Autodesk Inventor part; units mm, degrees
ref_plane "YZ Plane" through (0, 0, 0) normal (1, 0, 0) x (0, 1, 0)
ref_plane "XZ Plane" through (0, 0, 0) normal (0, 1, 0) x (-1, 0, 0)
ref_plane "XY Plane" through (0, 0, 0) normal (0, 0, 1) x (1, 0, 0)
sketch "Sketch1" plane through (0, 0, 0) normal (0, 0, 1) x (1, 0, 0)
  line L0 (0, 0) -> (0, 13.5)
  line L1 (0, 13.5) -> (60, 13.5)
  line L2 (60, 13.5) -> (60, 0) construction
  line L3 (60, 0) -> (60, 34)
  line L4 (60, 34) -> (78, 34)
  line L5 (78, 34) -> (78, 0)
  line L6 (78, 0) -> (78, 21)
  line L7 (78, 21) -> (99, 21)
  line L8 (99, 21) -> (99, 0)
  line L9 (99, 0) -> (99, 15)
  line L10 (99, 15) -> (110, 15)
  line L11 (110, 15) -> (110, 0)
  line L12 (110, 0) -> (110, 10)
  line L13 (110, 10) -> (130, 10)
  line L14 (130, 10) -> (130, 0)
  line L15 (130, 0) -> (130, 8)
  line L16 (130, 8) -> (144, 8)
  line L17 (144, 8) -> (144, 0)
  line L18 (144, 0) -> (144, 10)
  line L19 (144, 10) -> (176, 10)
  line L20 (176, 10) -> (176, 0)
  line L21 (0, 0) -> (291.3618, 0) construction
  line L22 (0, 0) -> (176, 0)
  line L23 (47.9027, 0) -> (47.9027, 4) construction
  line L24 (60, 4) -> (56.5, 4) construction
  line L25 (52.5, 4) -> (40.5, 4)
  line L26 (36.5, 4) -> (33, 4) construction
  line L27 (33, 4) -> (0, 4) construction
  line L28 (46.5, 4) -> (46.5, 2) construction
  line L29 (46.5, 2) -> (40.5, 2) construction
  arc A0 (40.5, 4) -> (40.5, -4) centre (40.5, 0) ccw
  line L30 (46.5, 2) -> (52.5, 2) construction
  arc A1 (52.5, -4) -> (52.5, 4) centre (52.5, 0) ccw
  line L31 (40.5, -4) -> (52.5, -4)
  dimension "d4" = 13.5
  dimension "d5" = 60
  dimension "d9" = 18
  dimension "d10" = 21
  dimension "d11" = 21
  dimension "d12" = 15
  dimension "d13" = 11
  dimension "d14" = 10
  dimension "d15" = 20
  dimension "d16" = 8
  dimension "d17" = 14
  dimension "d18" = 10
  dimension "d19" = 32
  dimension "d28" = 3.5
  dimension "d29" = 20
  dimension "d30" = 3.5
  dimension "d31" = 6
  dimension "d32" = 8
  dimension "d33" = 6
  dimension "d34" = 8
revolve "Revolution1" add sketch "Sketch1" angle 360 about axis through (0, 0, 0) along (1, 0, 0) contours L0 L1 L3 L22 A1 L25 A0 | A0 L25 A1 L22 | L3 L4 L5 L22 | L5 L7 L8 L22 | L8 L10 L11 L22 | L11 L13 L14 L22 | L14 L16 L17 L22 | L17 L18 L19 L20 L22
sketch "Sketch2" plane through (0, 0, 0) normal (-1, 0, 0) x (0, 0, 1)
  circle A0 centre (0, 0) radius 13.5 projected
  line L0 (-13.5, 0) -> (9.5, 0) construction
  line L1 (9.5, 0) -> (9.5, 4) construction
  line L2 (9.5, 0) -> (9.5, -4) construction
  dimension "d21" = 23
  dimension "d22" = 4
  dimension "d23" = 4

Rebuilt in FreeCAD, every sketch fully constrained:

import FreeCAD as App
import Part
import Sketcher

V = App.Vector
Q = App.Units.Quantity


def add_polygon(sketch, points):
    """Adds a closed chain of lines whose ends are joined by coincident constraints."""
    first, n = sketch.GeometryCount, len(points)
    for a, b in zip(points, points[1:] + points[:1]):
        sketch.addGeometry(Part.LineSegment(App.Vector(*a, 0), App.Vector(*b, 0)), False)
    for i in range(n):
        sketch.addConstraint(Sketcher.Constraint("Coincident", first + i, 2, first + (i + 1) % n, 1))

doc = App.newDocument("Part")
body = doc.addObject("PartDesign::Body", "Body")

sketch1 = body.newObject("Sketcher::SketchObject", "Sketch")
sketch1.AttachmentSupport = (doc.getObject("XY_Plane"), [""])
sketch1.MapMode = "FlatFace"
add_polygon(sketch1, [(0, 13.5), (0, 0), (176, 0), (176, 10), (144, 10), (144, 8), (130, 8), (130, 10), (110, 10), (110, 15), (99, 15), (99, 21), (78, 21), (78, 34), (60, 34), (60, 13.5)])
sketch1.addConstraint(Sketcher.Constraint("Vertical", 0))
sketch1.addConstraint(Sketcher.Constraint("Horizontal", 1))
sketch1.addConstraint(Sketcher.Constraint("Vertical", 2))
sketch1.addConstraint(Sketcher.Constraint("Horizontal", 3))
sketch1.addConstraint(Sketcher.Constraint("Vertical", 4))
sketch1.addConstraint(Sketcher.Constraint("Horizontal", 5))
sketch1.addConstraint(Sketcher.Constraint("Vertical", 6))
sketch1.addConstraint(Sketcher.Constraint("Horizontal", 7))
sketch1.addConstraint(Sketcher.Constraint("Vertical", 8))
sketch1.addConstraint(Sketcher.Constraint("Horizontal", 9))
sketch1.addConstraint(Sketcher.Constraint("Vertical", 10))
sketch1.addConstraint(Sketcher.Constraint("Horizontal", 11))
sketch1.addConstraint(Sketcher.Constraint("Vertical", 12))
sketch1.addConstraint(Sketcher.Constraint("Horizontal", 13))
sketch1.addConstraint(Sketcher.Constraint("Vertical", 14))
sketch1.addConstraint(Sketcher.Constraint("Horizontal", 15))
sketch1.addConstraint(Sketcher.Constraint("Coincident", 0, 2, -1, 1))
sketch1.addConstraint(Sketcher.Constraint("Horizontal", 3, 2, 6, 2))
sketch1.addConstraint(Sketcher.Constraint("DistanceX", 3, 2, 3, 1, Q("32 mm")))
sketch1.addConstraint(Sketcher.Constraint("DistanceX", 5, 2, 5, 1, Q("14 mm")))
sketch1.addConstraint(Sketcher.Constraint("DistanceX", 7, 2, 7, 1, Q("20 mm")))
sketch1.addConstraint(Sketcher.Constraint("DistanceX", 9, 2, 9, 1, Q("11 mm")))
sketch1.addConstraint(Sketcher.Constraint("DistanceX", 11, 2, 11, 1, Q("21 mm")))
sketch1.addConstraint(Sketcher.Constraint("DistanceX", 13, 2, 13, 1, Q("18 mm")))
sketch1.addConstraint(Sketcher.Constraint("DistanceX", 15, 2, 15, 1, Q("60 mm")))
sketch1.addConstraint(Sketcher.Constraint("DistanceY", 2, 1, 2, 2, Q("10 mm")))
sketch1.addConstraint(Sketcher.Constraint("DistanceY", 10, 1, 10, 2, Q("6 mm")))
sketch1.addConstraint(Sketcher.Constraint("DistanceY", 0, 2, 0, 1, Q("13.5 mm")))
sketch1.addConstraint(Sketcher.Constraint("DistanceY", -1, 1, 4, 2, Q("8 mm")))
sketch1.addConstraint(Sketcher.Constraint("DistanceY", -1, 1, 8, 2, Q("15 mm")))
sketch1.addConstraint(Sketcher.Constraint("DistanceY", 12, 1, 12, 2, Q("13 mm")))
revolution = body.newObject("PartDesign::Revolution", "Revolution")
revolution.Profile = sketch1
revolution.ReferenceAxis = (sketch1, ["H_Axis"])
revolution.Angle = 360

doc.recompute()
